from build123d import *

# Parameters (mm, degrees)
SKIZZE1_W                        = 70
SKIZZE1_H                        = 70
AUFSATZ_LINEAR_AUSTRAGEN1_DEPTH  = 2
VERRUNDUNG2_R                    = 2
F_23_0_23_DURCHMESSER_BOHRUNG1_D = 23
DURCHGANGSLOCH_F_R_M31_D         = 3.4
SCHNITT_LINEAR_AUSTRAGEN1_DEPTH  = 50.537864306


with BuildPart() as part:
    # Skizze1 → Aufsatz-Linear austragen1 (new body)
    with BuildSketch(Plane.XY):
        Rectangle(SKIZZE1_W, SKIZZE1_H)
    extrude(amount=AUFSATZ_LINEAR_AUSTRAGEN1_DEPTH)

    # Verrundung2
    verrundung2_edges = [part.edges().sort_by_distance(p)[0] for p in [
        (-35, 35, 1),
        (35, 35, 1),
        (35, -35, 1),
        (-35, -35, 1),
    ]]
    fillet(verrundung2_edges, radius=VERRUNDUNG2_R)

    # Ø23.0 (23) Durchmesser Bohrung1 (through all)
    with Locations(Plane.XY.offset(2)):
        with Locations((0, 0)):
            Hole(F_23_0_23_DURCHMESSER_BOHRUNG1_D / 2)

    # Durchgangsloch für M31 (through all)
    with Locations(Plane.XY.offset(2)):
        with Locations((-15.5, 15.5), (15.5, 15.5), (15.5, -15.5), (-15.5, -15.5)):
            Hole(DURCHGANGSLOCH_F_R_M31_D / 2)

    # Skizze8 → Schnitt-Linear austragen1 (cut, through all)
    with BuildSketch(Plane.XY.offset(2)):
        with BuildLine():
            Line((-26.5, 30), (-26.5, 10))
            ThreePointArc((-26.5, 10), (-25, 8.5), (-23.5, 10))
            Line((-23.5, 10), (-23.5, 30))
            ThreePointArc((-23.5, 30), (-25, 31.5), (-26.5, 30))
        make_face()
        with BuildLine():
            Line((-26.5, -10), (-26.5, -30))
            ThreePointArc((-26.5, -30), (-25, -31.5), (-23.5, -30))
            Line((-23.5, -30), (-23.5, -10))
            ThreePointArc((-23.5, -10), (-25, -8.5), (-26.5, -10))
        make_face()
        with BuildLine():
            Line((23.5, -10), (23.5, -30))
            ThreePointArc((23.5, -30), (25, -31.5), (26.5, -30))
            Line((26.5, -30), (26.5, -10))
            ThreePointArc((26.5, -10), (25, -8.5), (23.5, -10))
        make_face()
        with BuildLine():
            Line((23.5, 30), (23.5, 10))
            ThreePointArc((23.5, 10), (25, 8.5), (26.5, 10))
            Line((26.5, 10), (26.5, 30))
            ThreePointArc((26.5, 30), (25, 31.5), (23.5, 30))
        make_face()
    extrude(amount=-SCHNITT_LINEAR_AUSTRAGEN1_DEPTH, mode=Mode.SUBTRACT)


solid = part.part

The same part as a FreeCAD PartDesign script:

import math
import FreeCAD as App
import Part
import Sketcher
from FreeCAD import Vector
Q = App.Units.Quantity


def edges_at(feature, points):
    """Names of the edges that pass closest to the given points."""
    edges = feature.Shape.Edges
    near = lambda p: min(range(len(edges)), key=lambda i: edges[i].distToShape(Part.Vertex(*p))[0])
    return sorted({f"Edge{near(p) + 1}" for p in points})


def add_polygon(sketch, points):
    """Adds a closed chain of lines whose ends are joined by coincident constraints."""
    first, n = sketch.GeometryCount, len(points)
    for a, b in zip(points, points[1:] + points[:1]):
        sketch.addGeometry(Part.LineSegment(App.Vector(*a, 0), App.Vector(*b, 0)), False)
    for i in range(n):
        sketch.addConstraint(Sketcher.Constraint("Coincident", first + i, 2, first + (i + 1) % n, 1))

doc = App.newDocument("Part")
params = doc.addObject("Spreadsheet::Sheet", "Params")
for row, (alias, value) in enumerate([
    ("sketch1_width", "70 mm"),
    ("pad1_length", "2 mm"),
    ("fillet_radius", "2 mm"),
    ("sketch2_diameter", "23 mm"),
    ("hole_diameter", "23 mm"),
    ("sketch3_diameter", "3.4 mm"),
    ("hole2_diameter", "3.4 mm"),
    ("sketch4_radius", "1.5 mm"),
    ("sketch4_height", "20 mm"),
], start=1):
    params.set(f"A{row}", alias)
    params.set(f"B{row}", "=" + value)
    params.setAlias(f"B{row}", alias)

body = doc.addObject("PartDesign::Body", "Body")

sketch1 = body.newObject("Sketcher::SketchObject", "Sketch")
sketch1.AttachmentSupport = (doc.getObject("XY_Plane"), [""])
sketch1.MapMode = "FlatFace"
add_polygon(sketch1, [(-35, 35), (-35, -35), (35, -35), (35, 35)])
sketch1.addConstraint([
    Sketcher.Constraint("Vertical", 0),
    Sketcher.Constraint("Horizontal", 1),
    Sketcher.Constraint("Vertical", 2),
    Sketcher.Constraint("Horizontal", 3),
    Sketcher.Constraint("Symmetric", 0, 2, 2, 2, -1, 1),
    Sketcher.Constraint("Equal", 3, 0),
    Sketcher.Constraint("DistanceX", 1, 1, 1, 2, Q("70 mm")),
])
sketch1.setExpression("Constraints[10]", "Params.sketch1_width")
pad1 = body.newObject("PartDesign::Pad", "Pad")
pad1.Profile = sketch1
pad1.setExpression("Length", "Params.pad1_length")
doc.recompute()

fillet = body.newObject("PartDesign::Fillet", "Fillet")
fillet.Base = (pad1, edges_at(pad1, [
    (-35, 35, 1),
    (35, 35, 1),
    (35, -35, 1),
    (-35, -35, 1),
]))
fillet.setExpression("Radius", "Params.fillet_radius")

sketch2 = body.newObject("Sketcher::SketchObject", "Sketch001")
sketch2.AttachmentSupport = (doc.getObject("XY_Plane"), [""])
sketch2.MapMode = "FlatFace"
sketch2.AttachmentOffset = App.Placement(Vector(0, 0, 2), App.Rotation())
sketch2.addGeometry(Part.Circle(Vector(0, 0, 0), Vector(0, 0, 1), 12), False)
sketch2.addConstraint([
    Sketcher.Constraint("Coincident", 0, 3, -1, 1),
    Sketcher.Constraint("Diameter", 0, Q("23 mm")),
])
sketch2.setExpression("Constraints[1]", "Params.sketch2_diameter")
doc.recompute()
hole = body.newObject("PartDesign::Hole", "Hole")
hole.Profile = sketch2
hole.ThreadType = "None"
hole.setExpression("Diameter", "Params.hole_diameter")
hole.DepthType = "ThroughAll"

sketch3 = body.newObject("Sketcher::SketchObject", "Sketch002")
sketch3.AttachmentSupport = (doc.getObject("XY_Plane"), [""])
sketch3.MapMode = "FlatFace"
sketch3.AttachmentOffset = App.Placement(Vector(0, 0, 2), App.Rotation())
sketch3.addGeometry([
    Part.Circle(Vector(-15.5, 15.5, 0), Vector(0, 0, 1), 1.7),
    Part.Circle(Vector(15.5, 15.5, 0), Vector(0, 0, 1), 1.7),
    Part.Circle(Vector(15.5, -15.5, 0), Vector(0, 0, 1), 1.7),
    Part.Circle(Vector(-15.5, -15.5, 0), Vector(0, 0, 1), 1.7),
], False)
sketch3.addConstraint([
    Sketcher.Constraint("Equal", 0, 1),
    Sketcher.Constraint("Equal", 1, 2),
    Sketcher.Constraint("Equal", 2, 3),
    Sketcher.Constraint("Symmetric", 0, 3, 2, 3, -1, 1),
    Sketcher.Constraint("Symmetric", 1, 3, 3, 3, -1, 1),
    Sketcher.Constraint("Symmetric", 0, 3, 1, 3, -2),
    Sketcher.Constraint("Diameter", 0, Q("3.4 mm")),
    Sketcher.Constraint("DistanceX", 0, 3, 1, 3, Q("31 mm")),
    Sketcher.Constraint("DistanceY", 2, 3, 1, 3, Q("31 mm")),
])
sketch3.setExpression("Constraints[6]", "Params.sketch3_diameter")
doc.recompute()
hole2 = body.newObject("PartDesign::Hole", "Hole001")
hole2.Profile = sketch3
hole2.ThreadType = "None"
hole2.setExpression("Diameter", "Params.hole2_diameter")
hole2.DepthType = "ThroughAll"

sketch4 = body.newObject("Sketcher::SketchObject", "Sketch003")
sketch4.AttachmentSupport = (doc.getObject("XY_Plane"), [""])
sketch4.MapMode = "FlatFace"
sketch4.AttachmentOffset = App.Placement(Vector(0, 0, 2), App.Rotation())
sketch4.addGeometry([
    Part.LineSegment(Vector(-26.5, 30, 0), Vector(-26.5, 10, 0)),
    Part.ArcOfCircle(Part.Circle(Vector(-25, 10, 0), Vector(0, 0, 1), 1.5), math.radians(180), math.radians(360)),
    Part.LineSegment(Vector(-23.5, 10, 0), Vector(-23.5, 30, 0)),
    Part.ArcOfCircle(Part.Circle(Vector(-25, 30, 0), Vector(0, 0, 1), 1.5), math.radians(0), math.radians(180)),
    Part.LineSegment(Vector(-26.5, -10, 0), Vector(-26.5, -30, 0)),
    Part.ArcOfCircle(Part.Circle(Vector(-25, -30, 0), Vector(0, 0, 1), 1.5), math.radians(180), math.radians(360)),
    Part.LineSegment(Vector(-23.5, -30, 0), Vector(-23.5, -10, 0)),
    Part.ArcOfCircle(Part.Circle(Vector(-25, -10, 0), Vector(0, 0, 1), 1.5), math.radians(0), math.radians(180)),
    Part.LineSegment(Vector(23.5, -10, 0), Vector(23.5, -30, 0)),
    Part.ArcOfCircle(Part.Circle(Vector(25, -30, 0), Vector(0, 0, 1), 1.5), math.radians(180), math.radians(360)),
    Part.LineSegment(Vector(26.5, -30, 0), Vector(26.5, -10, 0)),
    Part.ArcOfCircle(Part.Circle(Vector(25, -10, 0), Vector(0, 0, 1), 1.5), math.radians(0), math.radians(180)),
    Part.LineSegment(Vector(23.5, 30, 0), Vector(23.5, 10, 0)),
    Part.ArcOfCircle(Part.Circle(Vector(25, 10, 0), Vector(0, 0, 1), 1.5), math.radians(180), math.radians(360)),
    Part.LineSegment(Vector(26.5, 10, 0), Vector(26.5, 30, 0)),
    Part.ArcOfCircle(Part.Circle(Vector(25, 30, 0), Vector(0, 0, 1), 1.5), math.radians(0), math.radians(180)),
], False)
sketch4.addConstraint([
    Sketcher.Constraint("Tangent", 0, 2, 1, 1),
    Sketcher.Constraint("Tangent", 1, 2, 2, 1),
    Sketcher.Constraint("Tangent", 2, 2, 3, 1),
    Sketcher.Constraint("Tangent", 3, 2, 0, 1),
    Sketcher.Constraint("Tangent", 4, 2, 5, 1),
    Sketcher.Constraint("Tangent", 5, 2, 6, 1),
    Sketcher.Constraint("Tangent", 6, 2, 7, 1),
    Sketcher.Constraint("Tangent", 7, 2, 4, 1),
    Sketcher.Constraint("Tangent", 8, 2, 9, 1),
    Sketcher.Constraint("Tangent", 9, 2, 10, 1),
    Sketcher.Constraint("Tangent", 10, 2, 11, 1),
    Sketcher.Constraint("Tangent", 11, 2, 8, 1),
    Sketcher.Constraint("Tangent", 12, 2, 13, 1),
    Sketcher.Constraint("Tangent", 13, 2, 14, 1),
    Sketcher.Constraint("Tangent", 14, 2, 15, 1),
    Sketcher.Constraint("Tangent", 15, 2, 12, 1),
    Sketcher.Constraint("Vertical", 0),
    Sketcher.Constraint("Vertical", 2),
    Sketcher.Constraint("Vertical", 4),
    Sketcher.Constraint("Vertical", 6),
    Sketcher.Constraint("Vertical", 8),
    Sketcher.Constraint("Vertical", 10),
    Sketcher.Constraint("Vertical", 12),
    Sketcher.Constraint("Vertical", 14),
    Sketcher.Constraint("Equal", 3, 5),
    Sketcher.Constraint("Equal", 7, 9),
    Sketcher.Constraint("Equal", 11, 13),
    Sketcher.Constraint("Symmetric", 3, 3, 9, 3, -1, 1),
    Sketcher.Constraint("Symmetric", 7, 3, 13, 3, -1, 1),
    Sketcher.Constraint("Symmetric", 5, 3, 9, 3, -2),
    Sketcher.Constraint("Horizontal", 7, 3, 11, 3),
    Sketcher.Constraint("Horizontal", 1, 3, 13, 3),
    Sketcher.Constraint("Horizontal", 3, 3, 15, 3),
    Sketcher.Constraint("Radius", 1, Q("1.5 mm")),
    Sketcher.Constraint("DistanceY", 0, 2, 0, 1, Q("20 mm")),
    Sketcher.Constraint("DistanceX", 1, 3, -1, 1, Q("25 mm")),
    Sketcher.Constraint("DistanceY", -1, 1, 1, 3, Q("10 mm")),
])
sketch4.setExpression("Constraints[33]", "Params.sketch4_radius")
sketch4.setExpression("Constraints[34]", "Params.sketch4_height")
pocket1 = body.newObject("PartDesign::Pocket", "Pocket")
pocket1.Profile = sketch4
pocket1.Type = "ThroughAll"

doc.recompute()
